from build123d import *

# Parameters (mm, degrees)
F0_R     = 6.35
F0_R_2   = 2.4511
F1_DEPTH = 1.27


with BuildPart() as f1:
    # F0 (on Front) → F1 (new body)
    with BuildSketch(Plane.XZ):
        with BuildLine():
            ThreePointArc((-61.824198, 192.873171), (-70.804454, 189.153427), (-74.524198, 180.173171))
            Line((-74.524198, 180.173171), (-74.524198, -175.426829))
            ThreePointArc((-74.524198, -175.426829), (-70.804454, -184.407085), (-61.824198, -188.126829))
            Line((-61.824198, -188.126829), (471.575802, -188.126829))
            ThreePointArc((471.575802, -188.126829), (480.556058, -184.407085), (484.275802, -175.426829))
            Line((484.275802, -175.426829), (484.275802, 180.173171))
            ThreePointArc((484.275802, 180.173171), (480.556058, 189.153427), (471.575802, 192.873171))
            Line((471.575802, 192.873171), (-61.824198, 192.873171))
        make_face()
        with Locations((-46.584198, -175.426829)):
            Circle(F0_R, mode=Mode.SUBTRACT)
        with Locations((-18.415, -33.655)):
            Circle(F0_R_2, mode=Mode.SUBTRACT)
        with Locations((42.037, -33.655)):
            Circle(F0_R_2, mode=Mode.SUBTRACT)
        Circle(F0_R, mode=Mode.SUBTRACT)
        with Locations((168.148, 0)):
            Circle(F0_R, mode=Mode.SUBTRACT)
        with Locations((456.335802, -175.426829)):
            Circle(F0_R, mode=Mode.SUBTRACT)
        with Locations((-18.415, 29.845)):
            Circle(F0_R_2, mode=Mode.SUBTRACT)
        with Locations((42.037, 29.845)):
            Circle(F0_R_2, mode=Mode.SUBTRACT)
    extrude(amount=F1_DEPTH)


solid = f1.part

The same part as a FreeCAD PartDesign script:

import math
import FreeCAD as App
import Part
import Sketcher
Q = App.Units.Quantity

doc = App.newDocument("Part")
body = doc.addObject("PartDesign::Body", "Body")

# Sketch on XZ plane
sketch1 = body.newObject("Sketcher::SketchObject", "Sketch")
sketch1.AttachmentSupport = (doc.getObject("XZ_Plane"), [""])
sketch1.MapMode = "FlatFace"
sketch1.addGeometry(Part.ArcOfCircle(Part.Circle(App.Vector(-61.8, 180.2, 0), App.Vector(0, 0, 1), 12.7), math.radians(90), math.radians(180)), False)
sketch1.addGeometry(Part.LineSegment(App.Vector(-74.5, 180.2, 0), App.Vector(-74.5, -175.4, 0)), False)
sketch1.addGeometry(Part.ArcOfCircle(Part.Circle(App.Vector(-61.8, -175.4, 0), App.Vector(0, 0, 1), 12.7), math.radians(-180), math.radians(-90)), False)
sketch1.addGeometry(Part.LineSegment(App.Vector(-61.8, -188.1, 0), App.Vector(471.6, -188.1, 0)), False)
sketch1.addGeometry(Part.ArcOfCircle(Part.Circle(App.Vector(471.6, -175.4, 0), App.Vector(0, 0, 1), 12.7), math.radians(-90), math.radians(0)), False)
sketch1.addGeometry(Part.LineSegment(App.Vector(484.3, -175.4, 0), App.Vector(484.3, 180.2, 0)), False)
sketch1.addGeometry(Part.ArcOfCircle(Part.Circle(App.Vector(471.6, 180.2, 0), App.Vector(0, 0, 1), 12.7), math.radians(0), math.radians(90)), False)
sketch1.addGeometry(Part.LineSegment(App.Vector(471.6, 192.9, 0), App.Vector(-61.8, 192.9, 0)), False)
sketch1.addGeometry(Part.Circle(App.Vector(-46.6, -175.4, 0), App.Vector(0, 0, 1), 6.3), False)
sketch1.addGeometry(Part.Circle(App.Vector(456.3, -175.4, 0), App.Vector(0, 0, 1), 6.3), False)
sketch1.addGeometry(Part.Circle(App.Vector(-18.4, -33.7, 0), App.Vector(0, 0, 1), 2.5), False)
sketch1.addGeometry(Part.Circle(App.Vector(42, -33.7, 0), App.Vector(0, 0, 1), 2.5), False)
sketch1.addGeometry(Part.Circle(App.Vector(0, 0, 0), App.Vector(0, 0, 1), 6.3), False)
sketch1.addGeometry(Part.Circle(App.Vector(-18.4, 29.8, 0), App.Vector(0, 0, 1), 2.5), False)
sketch1.addGeometry(Part.Circle(App.Vector(42, 29.8, 0), App.Vector(0, 0, 1), 2.5), False)
sketch1.addGeometry(Part.Circle(App.Vector(168.1, 0, 0), App.Vector(0, 0, 1), 6.3), False)
sketch1.addConstraint(Sketcher.Constraint("Tangent", 0, 2, 1, 1))
sketch1.addConstraint(Sketcher.Constraint("Tangent", 1, 2, 2, 1))
sketch1.addConstraint(Sketcher.Constraint("Tangent", 2, 2, 3, 1))
sketch1.addConstraint(Sketcher.Constraint("Tangent", 3, 2, 4, 1))
sketch1.addConstraint(Sketcher.Constraint("Tangent", 4, 2, 5, 1))
sketch1.addConstraint(Sketcher.Constraint("Tangent", 5, 2, 6, 1))
sketch1.addConstraint(Sketcher.Constraint("Tangent", 6, 2, 7, 1))
sketch1.addConstraint(Sketcher.Constraint("Tangent", 7, 2, 0, 1))
sketch1.addConstraint(Sketcher.Constraint("Vertical", 1))
sketch1.addConstraint(Sketcher.Constraint("Horizontal", 3))
sketch1.addConstraint(Sketcher.Constraint("Vertical", 5))
sketch1.addConstraint(Sketcher.Constraint("Horizontal", 7))
sketch1.addConstraint(Sketcher.Constraint("Coincident", 12, 3, -1, 1))
sketch1.addConstraint(Sketcher.Constraint("Equal", 0, 2))
sketch1.addConstraint(Sketcher.Constraint("Equal", 2, 4))
sketch1.addConstraint(Sketcher.Constraint("Equal", 4, 6))
sketch1.addConstraint(Sketcher.Constraint("Equal", 8, 9))
sketch1.addConstraint(Sketcher.Constraint("Equal", 10, 11))
sketch1.addConstraint(Sketcher.Constraint("Equal", 9, 12))
sketch1.addConstraint(Sketcher.Constraint("Equal", 11, 13))
sketch1.addConstraint(Sketcher.Constraint("Equal", 13, 14))
sketch1.addConstraint(Sketcher.Constraint("Equal", 12, 15))
sketch1.addConstraint(Sketcher.Constraint("PointOnObject", 15, 3, -1))
sketch1.addConstraint(Sketcher.Constraint("Horizontal", 4, 3, 8, 3))
sketch1.addConstraint(Sketcher.Constraint("Horizontal", 8, 3, 9, 3))
sketch1.addConstraint(Sketcher.Constraint("Horizontal", 10, 3, 11, 3))
sketch1.addConstraint(Sketcher.Constraint("Horizontal", 13, 3, 14, 3))
sketch1.addConstraint(Sketcher.Constraint("Vertical", 10, 3, 13, 3))
sketch1.addConstraint(Sketcher.Constraint("Vertical", 11, 3, 14, 3))
sketch1.addConstraint(Sketcher.Constraint("Diameter", 8, Q("0.5 in")))
sketch1.addConstraint(Sketcher.Constraint("Radius", 0, Q("0.5 in")))
sketch1.addConstraint(Sketcher.Constraint("DistanceX", 3, 1, 3, 2, Q("21 in")))
sketch1.addConstraint(Sketcher.Constraint("DistanceY", 1, 2, 1, 1, Q("14 in")))
sketch1.addConstraint(Sketcher.Constraint("Diameter", 10, Q("0.193 in")))
sketch1.addConstraint(Sketcher.Constraint("DistanceX", 2, 3, 8, 3, Q("0.6 in")))
sketch1.addConstraint(Sketcher.Constraint("DistanceX", 9, 3, 4, 3, Q("0.6 in")))
sketch1.addConstraint(Sketcher.Constraint("DistanceY", 10, 3, 13, 3, Q("2.5 in")))
sketch1.addConstraint(Sketcher.Constraint("DistanceX", -1, 1, 15, 3, Q("6.62 in")))
sketch1.addConstraint(Sketcher.Constraint("DistanceX", 10, 3, 11, 3, Q("2.38 in")))
sketch1.addConstraint(Sketcher.Constraint("DistanceX", 10, 3, -1, 1, Q("0.725 in")))
sketch1.addConstraint(Sketcher.Constraint("DistanceY", 10, 3, -1, 1, Q("1.325 in")))
sketch1.addConstraint(Sketcher.Constraint("DistanceX", -1, 1, 4, 3, 471.575802))
sketch1.addConstraint(Sketcher.Constraint("DistanceY", -1, 1, 0, 3, 180.173171))
pad1 = body.newObject("PartDesign::Pad", "Pad")
pad1.Profile = sketch1
pad1.Length = Q("0.05 in")

doc.recompute()
